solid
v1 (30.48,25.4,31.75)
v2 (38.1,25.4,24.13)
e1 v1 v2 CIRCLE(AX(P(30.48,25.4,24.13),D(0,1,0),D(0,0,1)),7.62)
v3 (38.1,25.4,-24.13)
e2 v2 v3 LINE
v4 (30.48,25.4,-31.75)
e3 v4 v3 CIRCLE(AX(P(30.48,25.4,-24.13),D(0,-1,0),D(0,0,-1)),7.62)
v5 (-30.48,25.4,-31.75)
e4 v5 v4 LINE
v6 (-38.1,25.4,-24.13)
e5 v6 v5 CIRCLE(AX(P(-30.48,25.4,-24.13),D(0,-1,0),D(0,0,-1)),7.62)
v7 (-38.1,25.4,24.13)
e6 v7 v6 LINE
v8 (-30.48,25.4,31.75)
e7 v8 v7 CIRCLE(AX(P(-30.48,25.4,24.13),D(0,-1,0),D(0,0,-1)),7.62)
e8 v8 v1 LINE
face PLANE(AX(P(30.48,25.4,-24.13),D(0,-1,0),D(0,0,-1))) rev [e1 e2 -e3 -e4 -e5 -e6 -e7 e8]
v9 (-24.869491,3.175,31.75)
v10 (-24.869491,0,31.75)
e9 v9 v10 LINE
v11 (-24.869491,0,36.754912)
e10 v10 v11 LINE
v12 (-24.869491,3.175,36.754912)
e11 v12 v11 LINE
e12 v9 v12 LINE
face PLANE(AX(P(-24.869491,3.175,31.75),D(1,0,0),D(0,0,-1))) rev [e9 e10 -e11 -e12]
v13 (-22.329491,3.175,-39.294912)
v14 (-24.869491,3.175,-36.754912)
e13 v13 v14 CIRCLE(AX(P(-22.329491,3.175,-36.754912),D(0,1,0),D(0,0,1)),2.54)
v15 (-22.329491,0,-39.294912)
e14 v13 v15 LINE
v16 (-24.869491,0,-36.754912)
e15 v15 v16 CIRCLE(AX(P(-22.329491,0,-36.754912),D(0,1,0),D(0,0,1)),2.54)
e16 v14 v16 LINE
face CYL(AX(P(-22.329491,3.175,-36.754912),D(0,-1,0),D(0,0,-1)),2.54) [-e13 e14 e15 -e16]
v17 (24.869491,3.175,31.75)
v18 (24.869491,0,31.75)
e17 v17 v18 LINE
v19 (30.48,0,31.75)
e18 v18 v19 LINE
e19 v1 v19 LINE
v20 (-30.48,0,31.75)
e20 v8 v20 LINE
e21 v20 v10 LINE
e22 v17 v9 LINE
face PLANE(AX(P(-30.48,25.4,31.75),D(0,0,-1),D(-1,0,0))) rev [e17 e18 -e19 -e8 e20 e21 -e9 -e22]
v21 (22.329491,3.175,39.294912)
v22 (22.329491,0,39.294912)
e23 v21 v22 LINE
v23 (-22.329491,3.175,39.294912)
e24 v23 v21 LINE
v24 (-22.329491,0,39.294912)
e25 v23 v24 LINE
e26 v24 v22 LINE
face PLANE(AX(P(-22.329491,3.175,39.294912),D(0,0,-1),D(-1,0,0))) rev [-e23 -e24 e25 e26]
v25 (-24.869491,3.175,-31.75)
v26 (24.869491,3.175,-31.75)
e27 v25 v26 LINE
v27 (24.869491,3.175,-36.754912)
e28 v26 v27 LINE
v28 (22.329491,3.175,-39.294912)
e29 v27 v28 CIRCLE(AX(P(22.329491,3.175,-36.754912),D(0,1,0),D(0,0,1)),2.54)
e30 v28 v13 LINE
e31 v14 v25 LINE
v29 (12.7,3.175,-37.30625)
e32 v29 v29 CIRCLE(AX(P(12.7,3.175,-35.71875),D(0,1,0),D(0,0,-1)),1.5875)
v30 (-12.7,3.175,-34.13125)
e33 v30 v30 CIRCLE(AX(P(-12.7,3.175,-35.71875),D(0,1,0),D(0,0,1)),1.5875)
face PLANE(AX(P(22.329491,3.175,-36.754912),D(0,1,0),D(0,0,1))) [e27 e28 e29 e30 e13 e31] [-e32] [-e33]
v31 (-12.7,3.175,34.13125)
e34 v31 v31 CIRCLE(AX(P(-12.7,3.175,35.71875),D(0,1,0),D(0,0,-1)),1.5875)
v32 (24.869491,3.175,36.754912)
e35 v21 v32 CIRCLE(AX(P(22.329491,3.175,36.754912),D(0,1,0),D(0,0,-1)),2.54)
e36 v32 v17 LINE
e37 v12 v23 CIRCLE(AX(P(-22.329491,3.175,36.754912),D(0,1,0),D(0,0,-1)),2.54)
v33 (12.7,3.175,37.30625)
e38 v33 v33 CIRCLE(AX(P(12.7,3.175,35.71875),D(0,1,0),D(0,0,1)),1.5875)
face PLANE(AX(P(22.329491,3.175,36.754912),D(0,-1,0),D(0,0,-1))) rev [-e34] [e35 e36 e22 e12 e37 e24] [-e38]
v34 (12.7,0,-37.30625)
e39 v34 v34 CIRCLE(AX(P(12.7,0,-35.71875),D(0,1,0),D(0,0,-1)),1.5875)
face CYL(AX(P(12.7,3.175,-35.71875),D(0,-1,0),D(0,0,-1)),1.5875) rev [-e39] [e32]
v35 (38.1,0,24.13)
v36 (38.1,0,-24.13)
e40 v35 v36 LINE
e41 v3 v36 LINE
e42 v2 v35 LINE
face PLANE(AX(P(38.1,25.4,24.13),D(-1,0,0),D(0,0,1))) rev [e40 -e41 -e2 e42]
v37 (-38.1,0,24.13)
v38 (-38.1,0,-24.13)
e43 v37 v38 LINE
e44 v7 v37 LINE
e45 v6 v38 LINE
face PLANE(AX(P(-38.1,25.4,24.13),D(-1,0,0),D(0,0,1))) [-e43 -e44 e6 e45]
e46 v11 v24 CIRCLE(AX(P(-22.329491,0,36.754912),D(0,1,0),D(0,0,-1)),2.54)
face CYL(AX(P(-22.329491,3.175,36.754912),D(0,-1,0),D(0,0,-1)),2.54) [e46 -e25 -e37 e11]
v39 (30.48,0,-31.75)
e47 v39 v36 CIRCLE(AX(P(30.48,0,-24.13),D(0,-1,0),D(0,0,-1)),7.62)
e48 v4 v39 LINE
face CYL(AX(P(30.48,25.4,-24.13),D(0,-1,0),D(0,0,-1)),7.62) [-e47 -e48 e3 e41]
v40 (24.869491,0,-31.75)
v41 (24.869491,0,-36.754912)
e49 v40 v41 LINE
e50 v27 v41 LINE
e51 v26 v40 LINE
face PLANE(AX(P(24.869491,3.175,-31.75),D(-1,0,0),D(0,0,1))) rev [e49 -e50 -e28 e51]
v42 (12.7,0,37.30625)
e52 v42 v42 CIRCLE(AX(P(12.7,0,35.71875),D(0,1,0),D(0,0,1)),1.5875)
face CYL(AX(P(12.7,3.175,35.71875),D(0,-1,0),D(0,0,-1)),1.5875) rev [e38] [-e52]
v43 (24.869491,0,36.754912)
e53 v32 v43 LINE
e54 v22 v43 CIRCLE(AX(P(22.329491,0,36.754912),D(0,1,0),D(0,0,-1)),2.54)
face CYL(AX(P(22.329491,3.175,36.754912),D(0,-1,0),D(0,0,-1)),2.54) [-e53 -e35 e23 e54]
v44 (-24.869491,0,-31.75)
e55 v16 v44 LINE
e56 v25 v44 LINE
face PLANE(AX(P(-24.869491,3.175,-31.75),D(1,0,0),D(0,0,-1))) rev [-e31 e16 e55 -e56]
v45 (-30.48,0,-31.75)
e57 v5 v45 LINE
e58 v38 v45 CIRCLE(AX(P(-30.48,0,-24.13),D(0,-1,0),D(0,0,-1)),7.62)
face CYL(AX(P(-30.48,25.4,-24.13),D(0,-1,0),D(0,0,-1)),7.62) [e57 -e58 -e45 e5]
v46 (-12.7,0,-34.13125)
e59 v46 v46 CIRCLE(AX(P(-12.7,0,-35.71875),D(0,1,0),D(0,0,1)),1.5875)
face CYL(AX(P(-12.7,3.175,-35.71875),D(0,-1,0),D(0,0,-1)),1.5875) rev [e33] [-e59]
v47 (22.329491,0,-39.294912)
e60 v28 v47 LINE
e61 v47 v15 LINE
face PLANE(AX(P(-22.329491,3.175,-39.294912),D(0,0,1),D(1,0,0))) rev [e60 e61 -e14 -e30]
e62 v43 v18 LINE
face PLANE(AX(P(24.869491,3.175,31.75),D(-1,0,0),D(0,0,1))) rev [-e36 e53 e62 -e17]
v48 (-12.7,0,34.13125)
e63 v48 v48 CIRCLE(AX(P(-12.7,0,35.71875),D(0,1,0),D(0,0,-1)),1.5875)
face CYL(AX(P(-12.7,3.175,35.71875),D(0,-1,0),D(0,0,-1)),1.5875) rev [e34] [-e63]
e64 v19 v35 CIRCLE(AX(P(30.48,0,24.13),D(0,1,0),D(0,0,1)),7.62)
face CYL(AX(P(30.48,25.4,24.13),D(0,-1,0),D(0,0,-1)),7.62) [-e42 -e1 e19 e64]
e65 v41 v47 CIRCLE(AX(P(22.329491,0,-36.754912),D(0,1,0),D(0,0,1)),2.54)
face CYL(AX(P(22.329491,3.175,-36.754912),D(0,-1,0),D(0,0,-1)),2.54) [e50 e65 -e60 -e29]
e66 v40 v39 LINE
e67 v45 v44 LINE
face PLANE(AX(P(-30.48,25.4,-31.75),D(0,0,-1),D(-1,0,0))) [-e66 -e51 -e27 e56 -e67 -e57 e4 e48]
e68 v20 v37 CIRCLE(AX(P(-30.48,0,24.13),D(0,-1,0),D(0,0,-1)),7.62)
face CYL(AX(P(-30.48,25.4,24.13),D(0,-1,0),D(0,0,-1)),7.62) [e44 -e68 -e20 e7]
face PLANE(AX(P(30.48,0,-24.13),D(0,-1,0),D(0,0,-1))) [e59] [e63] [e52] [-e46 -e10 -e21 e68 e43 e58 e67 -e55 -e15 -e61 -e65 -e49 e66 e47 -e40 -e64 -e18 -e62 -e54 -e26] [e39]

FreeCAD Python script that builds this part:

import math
import FreeCAD as App
import Part
import Sketcher
from FreeCAD import Vector
Q = App.Units.Quantity

doc = App.newDocument("Part")
params = doc.addObject("Spreadsheet::Sheet", "Params")
for row, (alias, value) in enumerate([
    ("sketch1_radius", "0.3 in"),
    ("sketch1_width", "2.4 in"),
    ("sketch1_height", "1.9 in"),
    ("pad1_length", "1 in"),
    ("sketch2_radius", "0.1 in"),
    ("sketch2_diameter", "0.125 in"),
    ("pad2_length", "0.125 in"),
], start=1):
    params.set(f"A{row}", alias)
    params.set(f"B{row}", "=" + value)
    params.setAlias(f"B{row}", alias)

body = doc.addObject("PartDesign::Body", "Body")

# Sketch on XZ plane
sketch1 = doc.addObject("Sketcher::SketchObject", "Sketch")
body.addObject(sketch1)
sketch1.AttachmentSupport = (doc.XZ_Plane, [""])
sketch1.MapMode = "FlatFace"
sketch1.addGeometry([
    Part.LineSegment(Vector(-30, 32, 0), Vector(30, 32, 0)),  # 0
    Part.ArcOfCircle(Part.Circle(Vector(30, 24, 0), Vector(0, 0, 1), 8), math.radians(0), math.radians(90)),  # 1
    Part.LineSegment(Vector(38, 24, 0), Vector(38, -24, 0)),  # 2
    Part.ArcOfCircle(Part.Circle(Vector(30, -24, 0), Vector(0, 0, 1), 8), math.radians(-90), math.radians(0)),  # 3
    Part.LineSegment(Vector(30, -32, 0), Vector(-30, -32, 0)),  # 4
    Part.ArcOfCircle(Part.Circle(Vector(-30, -24, 0), Vector(0, 0, 1), 8), math.radians(180), math.radians(270)),  # 5
    Part.LineSegment(Vector(-38, -24, 0), Vector(-38, 24, 0)),  # 6
    Part.ArcOfCircle(Part.Circle(Vector(-30, 24, 0), Vector(0, 0, 1), 8), math.radians(90), math.radians(180)),  # 7
], False)
sketch1.addConstraint([
    Sketcher.Constraint("Tangent", 0, 2, 1, 2),
    Sketcher.Constraint("Tangent", 1, 1, 2, 1),
    Sketcher.Constraint("Tangent", 2, 2, 3, 2),
    Sketcher.Constraint("Tangent", 3, 1, 4, 1),
    Sketcher.Constraint("Tangent", 4, 2, 5, 2),
    Sketcher.Constraint("Tangent", 5, 1, 6, 1),
    Sketcher.Constraint("Tangent", 6, 2, 7, 2),
    Sketcher.Constraint("Tangent", 7, 1, 0, 1),
    Sketcher.Constraint("Horizontal", 0),
    Sketcher.Constraint("Vertical", 2),
    Sketcher.Constraint("Horizontal", 4),
    Sketcher.Constraint("Vertical", 6),
    Sketcher.Constraint("Equal", 1, 3),
    Sketcher.Constraint("Equal", 3, 5),
    Sketcher.Constraint("Equal", 5, 7),
    Sketcher.Constraint("Symmetric", 1, 3, 5, 3, -1, 1),
    Sketcher.Constraint("Radius", 1, Q("0.3 in")),
    Sketcher.Constraint("DistanceX", 0, 1, 0, 2, Q("2.4 in")),
    Sketcher.Constraint("DistanceY", 2, 2, 2, 1, Q("1.9 in")),
])
sketch1.setExpression("Constraints[16]", "Params.sketch1_radius")
sketch1.setExpression("Constraints[17]", "Params.sketch1_width")
sketch1.setExpression("Constraints[18]", "Params.sketch1_height")
pad1 = doc.addObject("PartDesign::Pad", "Pad")
body.addObject(pad1)
pad1.Profile = sketch1
pad1.setExpression("Length", "Params.pad1_length")
pad1.Reversed = True

# Sketch on XZ plane
sketch2 = doc.addObject("Sketcher::SketchObject", "Sketch001")
body.addObject(sketch2)
sketch2.AttachmentSupport = (doc.XZ_Plane, [""])
sketch2.MapMode = "FlatFace"
sketch2.addGeometry([
    Part.LineSegment(Vector(24.9, 31.8, 0), Vector(-24.9, 31.8, 0)),  # 0
    Part.LineSegment(Vector(-24.9, 31.8, 0), Vector(-24.9, 36.8, 0)),  # 1
    Part.ArcOfCircle(Part.Circle(Vector(-22.3, 36.8, 0), Vector(0, 0, 1), 2.5), math.radians(90), math.radians(180)),  # 2
    Part.LineSegment(Vector(-22.3, 39.3, 0), Vector(22.3, 39.3, 0)),  # 3
    Part.ArcOfCircle(Part.Circle(Vector(22.3, 36.8, 0), Vector(0, 0, 1), 2.5), math.radians(0), math.radians(90)),  # 4
    Part.LineSegment(Vector(24.9, 36.8, 0), Vector(24.9, 31.8, 0)),  # 5
    Part.Circle(Vector(12.7, 35.7, 0), Vector(0, 0, 1), 1.6),  # 6
    Part.Circle(Vector(-12.7, 35.7, 0), Vector(0, 0, 1), 1.6),  # 7
    Part.LineSegment(Vector(-24.9, -36.8, 0), Vector(-24.9, -31.8, 0)),  # 8
    Part.LineSegment(Vector(-24.9, -31.8, 0), Vector(24.9, -31.8, 0)),  # 9
    Part.LineSegment(Vector(24.9, -31.8, 0), Vector(24.9, -36.8, 0)),  # 10
    Part.ArcOfCircle(Part.Circle(Vector(22.3, -36.8, 0), Vector(0, 0, 1), 2.5), math.radians(-90), math.radians(0)),  # 11
    Part.LineSegment(Vector(22.3, -39.3, 0), Vector(-22.3, -39.3, 0)),  # 12
    Part.ArcOfCircle(Part.Circle(Vector(-22.3, -36.8, 0), Vector(0, 0, 1), 2.5), math.radians(-180), math.radians(-90)),  # 13
    Part.Circle(Vector(12.7, -35.7, 0), Vector(0, 0, 1), 1.6),  # 14
    Part.Circle(Vector(-12.7, -35.7, 0), Vector(0, 0, 1), 1.6),  # 15
], False)
sketch2.addConstraint([
    Sketcher.Constraint("Coincident", 0, 2, 1, 1),
    Sketcher.Constraint("Tangent", 1, 2, 2, 2),
    Sketcher.Constraint("Tangent", 2, 1, 3, 1),
    Sketcher.Constraint("Tangent", 3, 2, 4, 2),
    Sketcher.Constraint("Tangent", 4, 1, 5, 1),
    Sketcher.Constraint("Coincident", 5, 2, 0, 1),
    Sketcher.Constraint("Coincident", 8, 2, 9, 1),
    Sketcher.Constraint("Coincident", 9, 2, 10, 1),
    Sketcher.Constraint("Tangent", 10, 2, 11, 2),
    Sketcher.Constraint("Tangent", 11, 1, 12, 1),
    Sketcher.Constraint("Tangent", 12, 2, 13, 2),
    Sketcher.Constraint("Tangent", 13, 1, 8, 1),
    Sketcher.Constraint("Horizontal", 0),
    Sketcher.Constraint("Vertical", 1),
    Sketcher.Constraint("Horizontal", 3),
    Sketcher.Constraint("Vertical", 5),
    Sketcher.Constraint("Vertical", 8),
    Sketcher.Constraint("Horizontal", 9),
    Sketcher.Constraint("Vertical", 10),
    Sketcher.Constraint("Horizontal", 12),
    Sketcher.Constraint("Equal", 2, 4),
    Sketcher.Constraint("Equal", 6, 7),
    Sketcher.Constraint("Equal", 4, 11),
    Sketcher.Constraint("Equal", 11, 13),
    Sketcher.Constraint("Equal", 7, 14),
    Sketcher.Constraint("Equal", 14, 15),
    Sketcher.Constraint("Symmetric", 2, 3, 11, 3, -1, 1),
    Sketcher.Constraint("Symmetric", 7, 3, 14, 3, -1, 1),
    Sketcher.Constraint("Symmetric", 6, 3, 15, 3, -1, 1),
    Sketcher.Constraint("Symmetric", 5, 2, 8, 2, -1, 1),
    Sketcher.Constraint("Symmetric", 6, 3, 7, 3, -2),
    Sketcher.Constraint("Vertical", 4, 3, 11, 3),
    Sketcher.Constraint("Radius", 2, Q("0.1 in")),
    Sketcher.Constraint("Diameter", 6, Q("0.125 in")),
    Sketcher.Constraint("DistanceX", 7, 3, 6, 3, Q("1 in")),
    Sketcher.Constraint("DistanceY", 8, 2, 0, 2, Q("2.5 in")),
    Sketcher.Constraint("DistanceY", -1, 1, 6, 3, Q("1.40625 in")),
    Sketcher.Constraint("DistanceX", 0, 2, 0, 1, 49.738982),
    Sketcher.Constraint("DistanceY", 1, 1, 1, 2, 5.004912),
])
sketch2.setExpression("Constraints[32]", "Params.sketch2_radius")
sketch2.setExpression("Constraints[33]", "Params.sketch2_diameter")
pad2 = doc.addObject("PartDesign::Pad", "Pad001")
body.addObject(pad2)
pad2.Profile = sketch2
pad2.setExpression("Length", "Params.pad2_length")
pad2.Reversed = True

doc.recompute()
